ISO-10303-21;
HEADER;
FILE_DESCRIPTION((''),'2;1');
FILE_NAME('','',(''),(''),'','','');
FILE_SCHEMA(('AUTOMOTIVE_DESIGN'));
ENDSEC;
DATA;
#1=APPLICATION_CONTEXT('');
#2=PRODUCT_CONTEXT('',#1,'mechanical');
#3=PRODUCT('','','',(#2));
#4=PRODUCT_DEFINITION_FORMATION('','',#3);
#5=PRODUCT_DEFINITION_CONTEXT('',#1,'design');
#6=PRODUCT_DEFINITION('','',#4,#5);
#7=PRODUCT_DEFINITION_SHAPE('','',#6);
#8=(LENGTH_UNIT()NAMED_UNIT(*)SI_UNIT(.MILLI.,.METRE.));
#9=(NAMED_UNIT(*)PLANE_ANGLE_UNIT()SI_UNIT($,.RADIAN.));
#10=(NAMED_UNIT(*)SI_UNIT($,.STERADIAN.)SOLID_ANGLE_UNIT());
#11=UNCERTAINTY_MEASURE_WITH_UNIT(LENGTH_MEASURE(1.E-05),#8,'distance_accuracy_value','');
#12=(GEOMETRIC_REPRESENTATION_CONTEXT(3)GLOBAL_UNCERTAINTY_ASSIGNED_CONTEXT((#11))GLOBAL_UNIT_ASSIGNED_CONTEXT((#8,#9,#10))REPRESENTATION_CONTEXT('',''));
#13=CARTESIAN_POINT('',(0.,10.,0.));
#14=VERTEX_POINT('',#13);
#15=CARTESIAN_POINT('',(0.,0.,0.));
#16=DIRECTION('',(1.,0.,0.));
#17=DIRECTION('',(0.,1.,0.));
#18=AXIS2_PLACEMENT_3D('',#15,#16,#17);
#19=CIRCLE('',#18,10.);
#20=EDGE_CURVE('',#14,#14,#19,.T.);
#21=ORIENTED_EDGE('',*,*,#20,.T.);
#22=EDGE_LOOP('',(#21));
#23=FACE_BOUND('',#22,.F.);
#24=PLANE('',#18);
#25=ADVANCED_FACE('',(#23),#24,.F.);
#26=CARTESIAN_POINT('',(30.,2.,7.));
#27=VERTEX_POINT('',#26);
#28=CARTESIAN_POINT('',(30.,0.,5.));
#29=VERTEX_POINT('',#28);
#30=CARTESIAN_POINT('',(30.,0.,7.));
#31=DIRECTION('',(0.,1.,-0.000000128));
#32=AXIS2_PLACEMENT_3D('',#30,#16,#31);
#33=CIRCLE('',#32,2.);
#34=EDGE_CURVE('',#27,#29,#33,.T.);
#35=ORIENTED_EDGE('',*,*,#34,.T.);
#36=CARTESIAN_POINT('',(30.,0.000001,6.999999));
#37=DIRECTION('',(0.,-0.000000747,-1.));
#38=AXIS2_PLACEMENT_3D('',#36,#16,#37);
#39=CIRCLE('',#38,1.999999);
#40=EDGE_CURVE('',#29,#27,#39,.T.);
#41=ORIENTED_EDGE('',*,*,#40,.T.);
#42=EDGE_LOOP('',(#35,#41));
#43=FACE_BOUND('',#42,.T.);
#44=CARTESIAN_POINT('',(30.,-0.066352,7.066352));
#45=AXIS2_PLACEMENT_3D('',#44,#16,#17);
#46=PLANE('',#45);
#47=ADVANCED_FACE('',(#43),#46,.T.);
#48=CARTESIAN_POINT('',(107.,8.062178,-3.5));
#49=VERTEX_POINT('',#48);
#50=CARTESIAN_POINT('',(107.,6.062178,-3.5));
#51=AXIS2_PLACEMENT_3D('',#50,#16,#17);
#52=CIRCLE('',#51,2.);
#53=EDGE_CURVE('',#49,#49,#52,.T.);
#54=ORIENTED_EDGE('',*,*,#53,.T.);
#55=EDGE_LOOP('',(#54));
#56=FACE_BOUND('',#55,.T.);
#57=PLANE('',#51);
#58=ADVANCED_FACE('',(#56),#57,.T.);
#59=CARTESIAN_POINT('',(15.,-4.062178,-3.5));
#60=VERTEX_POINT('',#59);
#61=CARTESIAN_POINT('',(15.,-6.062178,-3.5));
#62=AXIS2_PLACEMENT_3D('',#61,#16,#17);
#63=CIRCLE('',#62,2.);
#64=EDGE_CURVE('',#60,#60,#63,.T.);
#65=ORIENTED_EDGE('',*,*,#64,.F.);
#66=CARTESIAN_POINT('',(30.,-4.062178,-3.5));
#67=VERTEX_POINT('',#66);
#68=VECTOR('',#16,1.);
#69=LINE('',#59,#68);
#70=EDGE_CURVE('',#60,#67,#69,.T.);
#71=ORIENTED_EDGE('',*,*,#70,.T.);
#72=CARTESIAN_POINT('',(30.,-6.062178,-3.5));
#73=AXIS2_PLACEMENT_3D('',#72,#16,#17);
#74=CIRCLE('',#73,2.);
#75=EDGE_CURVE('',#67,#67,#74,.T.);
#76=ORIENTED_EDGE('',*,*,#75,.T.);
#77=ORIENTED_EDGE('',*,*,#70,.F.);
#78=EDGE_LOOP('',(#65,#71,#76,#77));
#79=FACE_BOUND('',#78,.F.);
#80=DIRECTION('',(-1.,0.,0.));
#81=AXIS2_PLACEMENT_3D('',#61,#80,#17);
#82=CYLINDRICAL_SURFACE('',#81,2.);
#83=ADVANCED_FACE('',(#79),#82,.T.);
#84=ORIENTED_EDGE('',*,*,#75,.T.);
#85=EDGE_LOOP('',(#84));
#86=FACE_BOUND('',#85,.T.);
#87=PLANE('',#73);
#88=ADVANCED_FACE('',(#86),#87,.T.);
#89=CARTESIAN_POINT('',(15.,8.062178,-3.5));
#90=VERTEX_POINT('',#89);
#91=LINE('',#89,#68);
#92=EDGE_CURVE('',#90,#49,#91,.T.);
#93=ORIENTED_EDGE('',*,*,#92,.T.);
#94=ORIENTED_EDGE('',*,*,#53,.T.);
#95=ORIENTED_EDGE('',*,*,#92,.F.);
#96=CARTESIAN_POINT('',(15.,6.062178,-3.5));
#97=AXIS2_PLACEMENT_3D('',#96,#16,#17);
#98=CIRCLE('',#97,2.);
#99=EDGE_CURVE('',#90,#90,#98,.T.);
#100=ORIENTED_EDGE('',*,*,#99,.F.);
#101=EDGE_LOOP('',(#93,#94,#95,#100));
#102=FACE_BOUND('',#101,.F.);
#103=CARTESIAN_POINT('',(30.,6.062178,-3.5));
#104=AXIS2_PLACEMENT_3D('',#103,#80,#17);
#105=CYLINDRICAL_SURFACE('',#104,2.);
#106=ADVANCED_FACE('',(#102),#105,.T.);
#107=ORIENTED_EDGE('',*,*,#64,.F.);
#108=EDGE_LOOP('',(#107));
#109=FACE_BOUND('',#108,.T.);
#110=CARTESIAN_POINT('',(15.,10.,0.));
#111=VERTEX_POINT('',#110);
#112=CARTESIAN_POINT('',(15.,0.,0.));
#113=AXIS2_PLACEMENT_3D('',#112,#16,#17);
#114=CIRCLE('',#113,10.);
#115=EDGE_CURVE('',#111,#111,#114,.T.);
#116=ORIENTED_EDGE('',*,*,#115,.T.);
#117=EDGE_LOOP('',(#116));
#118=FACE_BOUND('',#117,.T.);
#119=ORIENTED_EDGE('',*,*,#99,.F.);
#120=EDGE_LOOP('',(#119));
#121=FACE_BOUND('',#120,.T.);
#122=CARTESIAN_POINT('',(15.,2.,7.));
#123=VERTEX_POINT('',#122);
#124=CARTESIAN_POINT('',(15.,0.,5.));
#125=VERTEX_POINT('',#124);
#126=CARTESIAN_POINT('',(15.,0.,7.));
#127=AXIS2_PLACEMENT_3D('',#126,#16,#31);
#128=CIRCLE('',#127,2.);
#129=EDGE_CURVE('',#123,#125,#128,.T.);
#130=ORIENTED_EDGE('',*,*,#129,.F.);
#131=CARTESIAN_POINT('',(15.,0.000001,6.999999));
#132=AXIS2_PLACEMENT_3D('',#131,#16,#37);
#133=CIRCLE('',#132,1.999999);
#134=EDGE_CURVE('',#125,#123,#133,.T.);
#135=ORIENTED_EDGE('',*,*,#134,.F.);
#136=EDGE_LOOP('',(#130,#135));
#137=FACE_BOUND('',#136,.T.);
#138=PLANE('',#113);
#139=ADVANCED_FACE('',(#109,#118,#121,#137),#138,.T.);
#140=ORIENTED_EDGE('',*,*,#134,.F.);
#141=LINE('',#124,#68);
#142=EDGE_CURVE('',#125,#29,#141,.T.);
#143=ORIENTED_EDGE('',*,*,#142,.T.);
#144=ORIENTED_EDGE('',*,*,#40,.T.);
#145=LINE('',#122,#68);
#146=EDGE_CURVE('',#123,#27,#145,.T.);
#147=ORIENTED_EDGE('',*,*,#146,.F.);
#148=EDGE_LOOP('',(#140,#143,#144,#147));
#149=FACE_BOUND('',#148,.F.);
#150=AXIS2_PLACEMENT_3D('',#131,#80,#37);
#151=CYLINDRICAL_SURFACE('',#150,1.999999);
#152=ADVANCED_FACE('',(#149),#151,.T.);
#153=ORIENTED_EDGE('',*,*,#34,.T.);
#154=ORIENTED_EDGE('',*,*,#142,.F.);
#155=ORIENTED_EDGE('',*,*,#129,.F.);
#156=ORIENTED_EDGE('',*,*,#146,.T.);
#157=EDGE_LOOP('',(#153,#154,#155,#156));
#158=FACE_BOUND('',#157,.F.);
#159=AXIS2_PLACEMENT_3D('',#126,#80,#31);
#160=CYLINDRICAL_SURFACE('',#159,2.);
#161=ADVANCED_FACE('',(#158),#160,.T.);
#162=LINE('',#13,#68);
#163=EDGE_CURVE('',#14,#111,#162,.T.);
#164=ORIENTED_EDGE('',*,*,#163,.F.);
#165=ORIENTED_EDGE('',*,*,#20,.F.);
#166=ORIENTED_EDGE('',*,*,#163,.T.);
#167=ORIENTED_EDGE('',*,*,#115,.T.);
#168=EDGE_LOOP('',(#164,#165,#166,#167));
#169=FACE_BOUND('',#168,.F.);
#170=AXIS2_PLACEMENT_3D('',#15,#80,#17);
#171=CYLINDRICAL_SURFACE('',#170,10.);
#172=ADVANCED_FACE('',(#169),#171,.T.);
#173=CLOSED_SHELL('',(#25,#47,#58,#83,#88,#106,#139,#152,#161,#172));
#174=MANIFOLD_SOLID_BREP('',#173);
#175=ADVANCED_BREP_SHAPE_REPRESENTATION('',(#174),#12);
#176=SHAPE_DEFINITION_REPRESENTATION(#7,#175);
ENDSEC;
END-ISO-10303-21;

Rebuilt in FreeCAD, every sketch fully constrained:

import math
import FreeCAD as App
import Part
import Sketcher
from FreeCAD import Vector

doc = App.newDocument("Part")
params = doc.addObject("Spreadsheet::Sheet", "Params")
for row, (alias, value) in enumerate([
    ("sketch1_diameter", "20 mm"),
    ("pad1_length", "15 mm"),
    ("sketch2_diameter", "4 mm"),
    ("pad2_length", "15 mm"),
    ("sketch3_diameter", "4 mm"),
    ("pad3_length", "77 mm"),
], start=1):
    params.set(f"A{row}", alias)
    params.set(f"B{row}", "=" + value)
    params.setAlias(f"B{row}", alias)

body = doc.addObject("PartDesign::Body", "Body")

# Sketch on YZ plane
sketch1 = body.newObject("Sketcher::SketchObject", "Sketch")
sketch1.AttachmentSupport = (doc.getObject("YZ_Plane"), [""])
sketch1.MapMode = "FlatFace"
sketch1.addGeometry(Part.Circle(Vector(0, 0, 0), Vector(0, 0, 1), 10), False)
sketch1.addConstraint(Sketcher.Constraint("Coincident", 0, 3, -1, 1))
sketch1.addConstraint(Sketcher.Constraint("Diameter", 0, 20.0))
sketch1.setExpression("Constraints[1]", "Params.sketch1_diameter")
pad1 = body.newObject("PartDesign::Pad", "Pad")
pad1.Profile = sketch1
pad1.setExpression("Length", "Params.pad1_length")

# Sketch on YZ plane
sketch2 = body.newObject("Sketcher::SketchObject", "Sketch001")
sketch2.AttachmentSupport = (doc.getObject("YZ_Plane"), [""])
sketch2.MapMode = "FlatFace"
sketch2.AttachmentOffset = App.Placement(Vector(0, 0, 15), App.Rotation())
sketch2.addGeometry(Part.ArcOfCircle(Part.Circle(Vector(0, 7, 0), Vector(0, 0, 1), 2), math.radians(0), math.radians(270)), False)
sketch2.addGeometry(Part.ArcOfCircle(Part.Circle(Vector(0, 7, 0), Vector(0, 0, 1), 2), math.radians(-90), math.radians(0)), False)
sketch2.addGeometry(Part.Circle(Vector(6.1, -3.5, 0), Vector(0, 0, 1), 2), False)
sketch2.addGeometry(Part.Circle(Vector(-6.1, -3.5, 0), Vector(0, 0, 1), 2), False)
sketch2.addConstraint(Sketcher.Constraint("Tangent", 0, 1, 1, 2))
sketch2.addConstraint(Sketcher.Constraint("Coincident", 1, 1, 0, 2))
sketch2.addConstraint(Sketcher.Constraint("Equal", 1, 2))
sketch2.addConstraint(Sketcher.Constraint("Equal", 2, 3))
sketch2.addConstraint(Sketcher.Constraint("Symmetric", 2, 3, 3, 3, -2))
sketch2.addConstraint(Sketcher.Constraint("PointOnObject", 0, 3, -2))
sketch2.addConstraint(Sketcher.Constraint("PointOnObject", 1, 1, -2))
sketch2.addConstraint(Sketcher.Constraint("Horizontal", 1, 3, 0, 1))
sketch2.addConstraint(Sketcher.Constraint("Diameter", 2, 4.0))
sketch2.addConstraint(Sketcher.Constraint("DistanceY", -1, 1, 0, 3, 7.0))
sketch2.addConstraint(Sketcher.Constraint("DistanceY", 2, 3, -1, 1, 3.5))
sketch2.addConstraint(Sketcher.Constraint("DistanceX", -1, 1, 2, 3, 6.062178))
sketch2.setExpression("Constraints[8]", "Params.sketch2_diameter")
pad2 = body.newObject("PartDesign::Pad", "Pad001")
pad2.Profile = sketch2
pad2.setExpression("Length", "Params.pad2_length")

# Sketch on YZ plane
sketch3 = body.newObject("Sketcher::SketchObject", "Sketch002")
sketch3.AttachmentSupport = (doc.getObject("YZ_Plane"), [""])
sketch3.MapMode = "FlatFace"
sketch3.AttachmentOffset = App.Placement(Vector(0, 0, 30), App.Rotation())
sketch3.addGeometry(Part.Circle(Vector(6.1, -3.5, 0), Vector(0, 0, 1), 2), False)
sketch3.addConstraint(Sketcher.Constraint("Diameter", 0, 4.0))
sketch3.addConstraint(Sketcher.Constraint("DistanceY", 0, 3, -1, 1, 3.5))
sketch3.addConstraint(Sketcher.Constraint("DistanceX", -1, 1, 0, 3, 6.062178))
sketch3.setExpression("Constraints[0]", "Params.sketch3_diameter")
pad3 = body.newObject("PartDesign::Pad", "Pad002")
pad3.Profile = sketch3
pad3.setExpression("Length", "Params.pad3_length")

doc.recompute()
